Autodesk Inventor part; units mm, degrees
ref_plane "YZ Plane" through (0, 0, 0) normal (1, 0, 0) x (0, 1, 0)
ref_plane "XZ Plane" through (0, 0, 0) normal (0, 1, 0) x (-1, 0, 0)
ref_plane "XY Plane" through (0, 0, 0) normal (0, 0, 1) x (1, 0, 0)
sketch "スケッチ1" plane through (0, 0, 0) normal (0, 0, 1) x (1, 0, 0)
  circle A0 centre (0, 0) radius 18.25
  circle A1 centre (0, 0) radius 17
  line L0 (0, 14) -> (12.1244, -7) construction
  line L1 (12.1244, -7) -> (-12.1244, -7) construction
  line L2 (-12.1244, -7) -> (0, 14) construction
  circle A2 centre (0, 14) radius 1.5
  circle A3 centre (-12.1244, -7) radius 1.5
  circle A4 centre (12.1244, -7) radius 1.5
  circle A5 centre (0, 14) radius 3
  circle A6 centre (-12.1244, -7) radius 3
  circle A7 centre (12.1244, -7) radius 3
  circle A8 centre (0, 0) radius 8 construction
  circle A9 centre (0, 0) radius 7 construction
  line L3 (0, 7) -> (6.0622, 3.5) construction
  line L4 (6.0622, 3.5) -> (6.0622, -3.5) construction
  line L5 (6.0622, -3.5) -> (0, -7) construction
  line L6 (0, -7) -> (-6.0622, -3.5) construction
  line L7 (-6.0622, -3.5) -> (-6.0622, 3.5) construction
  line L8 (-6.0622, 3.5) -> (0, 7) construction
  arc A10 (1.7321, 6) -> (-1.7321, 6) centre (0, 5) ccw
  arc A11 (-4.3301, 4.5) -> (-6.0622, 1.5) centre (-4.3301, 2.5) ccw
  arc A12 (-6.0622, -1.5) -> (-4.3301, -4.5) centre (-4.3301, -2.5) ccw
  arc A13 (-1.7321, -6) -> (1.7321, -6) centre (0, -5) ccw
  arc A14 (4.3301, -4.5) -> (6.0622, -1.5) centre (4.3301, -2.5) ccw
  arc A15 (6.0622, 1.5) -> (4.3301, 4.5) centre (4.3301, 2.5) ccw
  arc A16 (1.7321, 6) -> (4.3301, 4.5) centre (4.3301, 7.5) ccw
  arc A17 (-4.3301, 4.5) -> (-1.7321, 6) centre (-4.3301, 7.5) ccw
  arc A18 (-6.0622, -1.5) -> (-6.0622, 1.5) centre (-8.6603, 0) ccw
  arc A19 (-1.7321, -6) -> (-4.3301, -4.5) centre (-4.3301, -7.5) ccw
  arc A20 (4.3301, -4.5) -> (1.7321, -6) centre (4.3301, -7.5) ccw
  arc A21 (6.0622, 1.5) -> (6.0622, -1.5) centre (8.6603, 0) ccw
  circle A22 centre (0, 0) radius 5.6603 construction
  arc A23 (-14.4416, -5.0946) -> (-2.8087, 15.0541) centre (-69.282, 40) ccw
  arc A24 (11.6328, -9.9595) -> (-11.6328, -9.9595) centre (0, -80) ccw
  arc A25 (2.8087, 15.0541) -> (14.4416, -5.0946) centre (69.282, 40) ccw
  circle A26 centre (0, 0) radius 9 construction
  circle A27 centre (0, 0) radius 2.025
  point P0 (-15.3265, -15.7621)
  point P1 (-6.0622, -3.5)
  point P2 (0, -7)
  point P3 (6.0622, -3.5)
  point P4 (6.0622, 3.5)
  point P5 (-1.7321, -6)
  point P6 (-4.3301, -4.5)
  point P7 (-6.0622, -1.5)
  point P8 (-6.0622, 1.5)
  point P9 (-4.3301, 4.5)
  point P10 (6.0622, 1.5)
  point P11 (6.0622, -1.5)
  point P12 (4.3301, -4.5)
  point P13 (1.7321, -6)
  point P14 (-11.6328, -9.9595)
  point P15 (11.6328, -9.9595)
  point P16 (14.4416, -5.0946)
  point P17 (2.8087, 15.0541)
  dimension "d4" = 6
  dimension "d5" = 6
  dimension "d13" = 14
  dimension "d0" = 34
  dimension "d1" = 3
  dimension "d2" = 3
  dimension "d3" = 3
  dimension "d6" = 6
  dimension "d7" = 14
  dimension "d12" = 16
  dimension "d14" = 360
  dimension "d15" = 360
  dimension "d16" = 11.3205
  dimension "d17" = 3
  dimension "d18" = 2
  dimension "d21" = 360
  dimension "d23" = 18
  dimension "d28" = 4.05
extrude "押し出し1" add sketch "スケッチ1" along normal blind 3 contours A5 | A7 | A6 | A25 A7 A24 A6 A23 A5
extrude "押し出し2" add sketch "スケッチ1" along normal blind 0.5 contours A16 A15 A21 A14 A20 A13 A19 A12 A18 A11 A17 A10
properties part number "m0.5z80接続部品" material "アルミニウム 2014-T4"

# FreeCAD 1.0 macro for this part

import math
import FreeCAD as App
import Part
import Sketcher

V = App.Vector

doc = App.newDocument("Part")
body = doc.addObject("PartDesign::Body", "Body")

# Sketch on XY plane
sketch1 = body.newObject("Sketcher::SketchObject", "Sketch")
sketch1.AttachmentSupport = (doc.getObject("XY_Plane"), [""])
sketch1.MapMode = "FlatFace"
sketch1.addGeometry([
    Part.ArcOfCircle(Part.Circle(V(0, 14, 0), V(0, 0, 1), 3), math.radians(21), math.radians(159)),  # 0
    Part.ArcOfCircle(Part.Circle(V(-69.3, 40, 0), V(0, 0, 1), 71), math.radians(-39.43), math.radians(-20.57)),  # 1
    Part.ArcOfCircle(Part.Circle(V(-12.1, -7, 0), V(0, 0, 1), 3), math.radians(141), math.radians(279)),  # 2
    Part.ArcOfCircle(Part.Circle(V(0, -80, 0), V(0, 0, 1), 71), math.radians(80.57), math.radians(99.43)),  # 3
    Part.ArcOfCircle(Part.Circle(V(12.1, -7, 0), V(0, 0, 1), 3), math.radians(-99), math.radians(39)),  # 4
    Part.ArcOfCircle(Part.Circle(V(69.3, 40, 0), V(0, 0, 1), 71), math.radians(-159.43), math.radians(-140.57)),  # 5
    Part.Circle(V(0, 14, 0), V(0, 0, 1), 1.5),  # 6
    Part.ArcOfCircle(Part.Circle(V(4.3, 2.5, 0), V(0, 0, 1), 2), math.radians(-30), math.radians(90)),  # 7
    Part.ArcOfCircle(Part.Circle(V(8.7, 0, 0), V(0, 0, 1), 3), math.radians(150), math.radians(210)),  # 8
    Part.ArcOfCircle(Part.Circle(V(4.3, -2.5, 0), V(0, 0, 1), 2), math.radians(-90), math.radians(30)),  # 9
    Part.ArcOfCircle(Part.Circle(V(4.3, -7.5, 0), V(0, 0, 1), 3), math.radians(90), math.radians(150)),  # 10
    Part.ArcOfCircle(Part.Circle(V(0, -5, 0), V(0, 0, 1), 2), math.radians(-150), math.radians(-30)),  # 11
    Part.ArcOfCircle(Part.Circle(V(-4.3, -7.5, 0), V(0, 0, 1), 3), math.radians(30), math.radians(90)),  # 12
    Part.ArcOfCircle(Part.Circle(V(-4.3, -2.5, 0), V(0, 0, 1), 2), math.radians(150), math.radians(270)),  # 13
    Part.ArcOfCircle(Part.Circle(V(-8.7, 0, 0), V(0, 0, 1), 3), math.radians(-30), math.radians(30)),  # 14
    Part.ArcOfCircle(Part.Circle(V(-4.3, 2.5, 0), V(0, 0, 1), 2), math.radians(90), math.radians(210)),  # 15
    Part.ArcOfCircle(Part.Circle(V(-4.3, 7.5, 0), V(0, 0, 1), 3), math.radians(-90), math.radians(-30)),  # 16
    Part.ArcOfCircle(Part.Circle(V(0, 5, 0), V(0, 0, 1), 2), math.radians(30), math.radians(150)),  # 17
    Part.ArcOfCircle(Part.Circle(V(4.3, 7.5, 0), V(0, 0, 1), 3), math.radians(-150), math.radians(-90)),  # 18
    Part.Circle(V(12.1, -7, 0), V(0, 0, 1), 1.5),  # 19
    Part.Circle(V(-12.1, -7, 0), V(0, 0, 1), 1.5),  # 20
], False)
sketch1.addConstraint([
    Sketcher.Constraint("Tangent", 0, 2, 1, 2),
    Sketcher.Constraint("Tangent", 1, 1, 2, 1),
    Sketcher.Constraint("Tangent", 2, 2, 3, 2),
    Sketcher.Constraint("Tangent", 3, 1, 4, 1),
    Sketcher.Constraint("Tangent", 4, 2, 5, 2),
    Sketcher.Constraint("Tangent", 5, 1, 0, 1),
    Sketcher.Constraint("Tangent", 7, 1, 8, 1),
    Sketcher.Constraint("Tangent", 8, 2, 9, 2),
    Sketcher.Constraint("Tangent", 9, 1, 10, 1),
    Sketcher.Constraint("Tangent", 10, 2, 11, 2),
    Sketcher.Constraint("Tangent", 11, 1, 12, 1),
    Sketcher.Constraint("Tangent", 12, 2, 13, 2),
    Sketcher.Constraint("Tangent", 13, 1, 14, 1),
    Sketcher.Constraint("Tangent", 14, 2, 15, 2),
    Sketcher.Constraint("Tangent", 15, 1, 16, 1),
    Sketcher.Constraint("Tangent", 16, 2, 17, 2),
    Sketcher.Constraint("Tangent", 17, 1, 18, 1),
    Sketcher.Constraint("Tangent", 18, 2, 7, 2),
    Sketcher.Constraint("Coincident", 6, 3, 0, 3),
    Sketcher.Constraint("Coincident", 19, 3, 4, 3),
    Sketcher.Constraint("Coincident", 20, 3, 2, 3),
    Sketcher.Constraint("Equal", 0, 2),
    Sketcher.Constraint("Equal", 2, 4),
    Sketcher.Constraint("Equal", 4, 8),
    Sketcher.Constraint("Equal", 7, 9),
    Sketcher.Constraint("Equal", 8, 10),
    Sketcher.Constraint("Equal", 9, 11),
    Sketcher.Constraint("Equal", 10, 12),
    Sketcher.Constraint("Equal", 11, 13),
    Sketcher.Constraint("Equal", 12, 14),
    Sketcher.Constraint("Equal", 13, 15),
    Sketcher.Constraint("Equal", 14, 16),
    Sketcher.Constraint("Equal", 15, 17),
    Sketcher.Constraint("Equal", 16, 18),
    Sketcher.Constraint("Equal", 6, 19),
    Sketcher.Constraint("Equal", 19, 20),
    Sketcher.Constraint("Symmetric", 7, 3, 13, 3, -1, 1),
    Sketcher.Constraint("Symmetric", 9, 3, 15, 3, -1, 1),
    Sketcher.Constraint("Symmetric", 11, 3, 17, 3, -1, 1),
    Sketcher.Constraint("Symmetric", 2, 3, 4, 3, -2),
    Sketcher.Constraint("Symmetric", 10, 3, 12, 3, -2),
    Sketcher.Constraint("PointOnObject", 0, 3, -2),
    Sketcher.Constraint("PointOnObject", 8, 3, -1),
    Sketcher.Constraint("Vertical", 9, 3, 10, 3),
    Sketcher.Constraint("Diameter", 6, 3.0),
    Sketcher.Constraint("Radius", 0, 3.0),
    Sketcher.Constraint("Radius", 7, 2.0),
    Sketcher.Constraint("DistanceY", -1, 1, 0, 3, 14.0),
    Sketcher.Constraint("DistanceY", 10, 2, -1, 1, 6.0),
    Sketcher.Constraint("Radius", 3, 71.0),
    Sketcher.Constraint("DistanceY", 2, 3, 11, 3, 2.0),
    Sketcher.Constraint("DistanceY", 7, 1, 18, 3, 6.0),
    Sketcher.Constraint("DistanceY", 3, 3, -1, 1, 80.0),
    Sketcher.Constraint("Radius", 1, 71.0013),
    Sketcher.Constraint("Radius", 5, 70.9986),
])
pad1 = body.newObject("PartDesign::Pad", "Pad")
pad1.Profile = sketch1
pad1.Length = 3

# Sketch on XY plane
sketch2 = body.newObject("Sketcher::SketchObject", "Sketch001")
sketch2.AttachmentSupport = (doc.getObject("XY_Plane"), [""])
sketch2.MapMode = "FlatFace"
sketch2.addGeometry([
    Part.ArcOfCircle(Part.Circle(V(4.3, 7.5, 0), V(0, 0, 1), 3), math.radians(-150), math.radians(-90)),  # 0
    Part.ArcOfCircle(Part.Circle(V(0, 5, 0), V(0, 0, 1), 2), math.radians(30), math.radians(150)),  # 1
    Part.ArcOfCircle(Part.Circle(V(-4.3, 7.5, 0), V(0, 0, 1), 3), math.radians(-90), math.radians(-30)),  # 2
    Part.ArcOfCircle(Part.Circle(V(-4.3, 2.5, 0), V(0, 0, 1), 2), math.radians(90), math.radians(210)),  # 3
    Part.ArcOfCircle(Part.Circle(V(-8.7, 0, 0), V(0, 0, 1), 3), math.radians(-30), math.radians(30)),  # 4
    Part.ArcOfCircle(Part.Circle(V(-4.3, -2.5, 0), V(0, 0, 1), 2), math.radians(150), math.radians(270)),  # 5
    Part.ArcOfCircle(Part.Circle(V(-4.3, -7.5, 0), V(0, 0, 1), 3), math.radians(30), math.radians(90)),  # 6
    Part.ArcOfCircle(Part.Circle(V(0, -5, 0), V(0, 0, 1), 2), math.radians(-150), math.radians(-30)),  # 7
    Part.ArcOfCircle(Part.Circle(V(4.3, -7.5, 0), V(0, 0, 1), 3), math.radians(90), math.radians(150)),  # 8
    Part.ArcOfCircle(Part.Circle(V(4.3, -2.5, 0), V(0, 0, 1), 2), math.radians(-90), math.radians(30)),  # 9
    Part.ArcOfCircle(Part.Circle(V(8.7, 0, 0), V(0, 0, 1), 3), math.radians(150), math.radians(210)),  # 10
    Part.ArcOfCircle(Part.Circle(V(4.3, 2.5, 0), V(0, 0, 1), 2), math.radians(-30), math.radians(90)),  # 11
    Part.Circle(V(0, 0, 0), V(0, 0, 1), 2),  # 12
], False)
sketch2.addConstraint([
    Sketcher.Constraint("Tangent", 0, 1, 1, 1),
    Sketcher.Constraint("Tangent", 1, 2, 2, 2),
    Sketcher.Constraint("Tangent", 2, 1, 3, 1),
    Sketcher.Constraint("Tangent", 3, 2, 4, 2),
    Sketcher.Constraint("Tangent", 4, 1, 5, 1),
    Sketcher.Constraint("Tangent", 5, 2, 6, 2),
    Sketcher.Constraint("Tangent", 6, 1, 7, 1),
    Sketcher.Constraint("Tangent", 7, 2, 8, 2),
    Sketcher.Constraint("Tangent", 8, 1, 9, 1),
    Sketcher.Constraint("Tangent", 9, 2, 10, 2),
    Sketcher.Constraint("Tangent", 10, 1, 11, 1),
    Sketcher.Constraint("Tangent", 11, 2, 0, 2),
    Sketcher.Constraint("Coincident", 12, 3, -1, 1),
    Sketcher.Constraint("Equal", 0, 2),
    Sketcher.Constraint("Equal", 1, 3),
    Sketcher.Constraint("Equal", 2, 4),
    Sketcher.Constraint("Equal", 3, 5),
    Sketcher.Constraint("Equal", 4, 6),
    Sketcher.Constraint("Equal", 5, 7),
    Sketcher.Constraint("Equal", 6, 8),
    Sketcher.Constraint("Equal", 7, 9),
    Sketcher.Constraint("Equal", 8, 10),
    Sketcher.Constraint("Equal", 9, 11),
    Sketcher.Constraint("Symmetric", 0, 3, 6, 3, -1, 1),
    Sketcher.Constraint("Symmetric", 2, 3, 8, 3, -1, 1),
    Sketcher.Constraint("Symmetric", 4, 3, 10, 3, -1, 1),
    Sketcher.Constraint("Symmetric", 0, 3, 2, 3, -2),
    Sketcher.Constraint("PointOnObject", 4, 3, -1),
    Sketcher.Constraint("Vertical", 2, 3, 3, 3),
    Sketcher.Constraint("Radius", 0, 3.0),
    Sketcher.Constraint("Radius", 1, 2.0),
    Sketcher.Constraint("Diameter", 12, 4.05),
    Sketcher.Constraint("DistanceY", -1, 1, 0, 1, 6.0),
    Sketcher.Constraint("DistanceY", 3, 2, 2, 1, 3.0),
])
pad2 = body.newObject("PartDesign::Pad", "Pad001")
pad2.Profile = sketch2
pad2.Length = 0.5

doc.recompute()
